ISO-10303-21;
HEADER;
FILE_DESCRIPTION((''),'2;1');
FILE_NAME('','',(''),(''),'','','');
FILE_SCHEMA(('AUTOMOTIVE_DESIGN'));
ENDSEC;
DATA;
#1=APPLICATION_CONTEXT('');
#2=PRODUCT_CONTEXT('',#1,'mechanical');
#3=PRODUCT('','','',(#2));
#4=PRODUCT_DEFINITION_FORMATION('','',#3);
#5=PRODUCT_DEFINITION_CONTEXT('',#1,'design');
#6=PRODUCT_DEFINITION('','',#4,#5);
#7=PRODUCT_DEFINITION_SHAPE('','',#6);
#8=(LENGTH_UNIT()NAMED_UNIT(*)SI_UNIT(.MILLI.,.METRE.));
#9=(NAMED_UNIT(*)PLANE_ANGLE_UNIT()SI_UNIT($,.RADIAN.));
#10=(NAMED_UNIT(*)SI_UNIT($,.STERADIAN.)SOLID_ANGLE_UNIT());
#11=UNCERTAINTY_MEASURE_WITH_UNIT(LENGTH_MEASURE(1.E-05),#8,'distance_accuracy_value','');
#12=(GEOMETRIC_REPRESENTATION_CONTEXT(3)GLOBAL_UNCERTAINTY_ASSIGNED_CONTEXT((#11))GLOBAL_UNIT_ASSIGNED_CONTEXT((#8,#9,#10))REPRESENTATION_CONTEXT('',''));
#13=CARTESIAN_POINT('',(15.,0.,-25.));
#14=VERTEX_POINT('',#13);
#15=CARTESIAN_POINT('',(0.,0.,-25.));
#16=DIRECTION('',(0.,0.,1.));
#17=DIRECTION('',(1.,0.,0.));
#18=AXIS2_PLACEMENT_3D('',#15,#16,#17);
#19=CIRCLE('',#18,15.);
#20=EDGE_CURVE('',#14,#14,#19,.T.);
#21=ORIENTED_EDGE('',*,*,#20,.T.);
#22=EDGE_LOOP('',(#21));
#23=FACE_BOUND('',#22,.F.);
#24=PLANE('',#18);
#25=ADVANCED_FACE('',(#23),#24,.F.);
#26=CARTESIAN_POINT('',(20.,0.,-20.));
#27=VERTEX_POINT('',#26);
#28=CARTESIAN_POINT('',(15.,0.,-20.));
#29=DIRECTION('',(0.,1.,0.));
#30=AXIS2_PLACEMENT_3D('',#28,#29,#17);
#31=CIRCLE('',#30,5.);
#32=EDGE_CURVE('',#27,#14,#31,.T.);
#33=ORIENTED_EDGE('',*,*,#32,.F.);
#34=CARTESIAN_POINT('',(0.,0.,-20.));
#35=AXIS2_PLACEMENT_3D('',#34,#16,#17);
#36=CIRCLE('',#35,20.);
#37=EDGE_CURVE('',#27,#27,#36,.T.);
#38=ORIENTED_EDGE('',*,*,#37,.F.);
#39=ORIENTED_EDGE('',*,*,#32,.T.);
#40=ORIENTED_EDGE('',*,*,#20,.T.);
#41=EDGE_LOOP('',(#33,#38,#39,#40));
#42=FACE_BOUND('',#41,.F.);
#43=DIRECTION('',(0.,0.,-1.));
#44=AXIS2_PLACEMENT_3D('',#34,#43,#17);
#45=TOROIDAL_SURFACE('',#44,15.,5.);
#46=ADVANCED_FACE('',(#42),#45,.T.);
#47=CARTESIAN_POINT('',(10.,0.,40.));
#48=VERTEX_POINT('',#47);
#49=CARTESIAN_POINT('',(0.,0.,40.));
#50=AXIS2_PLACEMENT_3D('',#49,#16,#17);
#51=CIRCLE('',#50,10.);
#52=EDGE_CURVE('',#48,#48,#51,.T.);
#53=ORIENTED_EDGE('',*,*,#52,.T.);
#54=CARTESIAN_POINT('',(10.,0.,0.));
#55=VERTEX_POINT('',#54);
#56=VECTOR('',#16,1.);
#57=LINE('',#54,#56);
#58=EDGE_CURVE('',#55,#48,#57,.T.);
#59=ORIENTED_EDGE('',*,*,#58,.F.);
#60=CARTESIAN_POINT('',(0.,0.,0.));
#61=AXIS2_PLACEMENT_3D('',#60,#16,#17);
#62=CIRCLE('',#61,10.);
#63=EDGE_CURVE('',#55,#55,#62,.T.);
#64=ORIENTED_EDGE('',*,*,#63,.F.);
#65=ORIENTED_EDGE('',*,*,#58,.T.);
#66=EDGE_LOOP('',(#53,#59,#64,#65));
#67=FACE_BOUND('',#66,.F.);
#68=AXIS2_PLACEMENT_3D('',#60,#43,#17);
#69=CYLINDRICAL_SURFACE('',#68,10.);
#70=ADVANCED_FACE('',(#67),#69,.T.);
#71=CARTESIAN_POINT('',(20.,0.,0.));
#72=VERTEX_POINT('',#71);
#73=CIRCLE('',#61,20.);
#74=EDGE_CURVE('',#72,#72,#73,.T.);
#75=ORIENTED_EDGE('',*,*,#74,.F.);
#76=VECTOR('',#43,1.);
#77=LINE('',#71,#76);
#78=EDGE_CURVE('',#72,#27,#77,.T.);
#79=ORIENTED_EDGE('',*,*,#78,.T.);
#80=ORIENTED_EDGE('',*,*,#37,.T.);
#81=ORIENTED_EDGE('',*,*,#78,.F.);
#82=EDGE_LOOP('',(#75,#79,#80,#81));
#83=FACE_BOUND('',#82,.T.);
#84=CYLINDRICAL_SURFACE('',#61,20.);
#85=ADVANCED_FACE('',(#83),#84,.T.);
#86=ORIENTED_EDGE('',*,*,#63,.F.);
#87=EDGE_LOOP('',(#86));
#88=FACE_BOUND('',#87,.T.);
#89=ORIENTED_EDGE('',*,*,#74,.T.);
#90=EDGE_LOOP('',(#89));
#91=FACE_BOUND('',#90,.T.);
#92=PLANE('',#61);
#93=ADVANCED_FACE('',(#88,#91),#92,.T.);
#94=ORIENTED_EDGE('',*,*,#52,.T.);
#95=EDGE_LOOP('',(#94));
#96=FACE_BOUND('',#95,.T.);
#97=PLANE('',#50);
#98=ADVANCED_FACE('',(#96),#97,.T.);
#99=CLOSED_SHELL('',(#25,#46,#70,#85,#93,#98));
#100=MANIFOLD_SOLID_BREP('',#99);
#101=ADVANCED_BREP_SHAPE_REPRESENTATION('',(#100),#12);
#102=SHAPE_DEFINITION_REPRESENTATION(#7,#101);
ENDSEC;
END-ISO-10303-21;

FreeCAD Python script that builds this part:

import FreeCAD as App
import Part
import Sketcher
from FreeCAD import Vector


def edges_at(feature, points):
    """Names of the edges that pass closest to the given points."""
    edges = feature.Shape.Edges
    near = lambda p: min(range(len(edges)), key=lambda i: edges[i].distToShape(Part.Vertex(*p))[0])
    return sorted({f"Edge{near(p) + 1}" for p in points})

doc = App.newDocument("Part")
body = doc.addObject("PartDesign::Body", "Body")

# Sketch on XY plane
sketch1 = body.newObject("Sketcher::SketchObject", "Sketch")
sketch1.AttachmentSupport = (doc.getObject("XY_Plane"), [""])
sketch1.MapMode = "FlatFace"
sketch1.addGeometry(Part.Circle(Vector(0, 0, 0), Vector(0, 0, 1), 20), False)
sketch1.addConstraint([
    Sketcher.Constraint("Coincident", 0, 3, -1, 1),
    Sketcher.Constraint("Diameter", 0, 40.0),
])
pad1 = body.newObject("PartDesign::Pad", "Pad")
pad1.Profile = sketch1
pad1.Length = 25
pad1.Reversed = True

# Sketch on XY plane
sketch2 = body.newObject("Sketcher::SketchObject", "Sketch001")
sketch2.AttachmentSupport = (doc.getObject("XY_Plane"), [""])
sketch2.MapMode = "FlatFace"
sketch2.addGeometry(Part.Circle(Vector(0, 0, 0), Vector(0, 0, 1), 10), False)
sketch2.addConstraint([
    Sketcher.Constraint("Coincident", 0, 3, -1, 1),
    Sketcher.Constraint("Diameter", 0, 20.0),
])
pad2 = body.newObject("PartDesign::Pad", "Pad001")
pad2.Profile = sketch2
pad2.Length = 40
doc.recompute()

fillet = body.newObject("PartDesign::Fillet", "Fillet")
fillet.Base = (pad2, edges_at(pad2, [(-20, 0, -25)]))
fillet.Radius = 5

doc.recompute()
